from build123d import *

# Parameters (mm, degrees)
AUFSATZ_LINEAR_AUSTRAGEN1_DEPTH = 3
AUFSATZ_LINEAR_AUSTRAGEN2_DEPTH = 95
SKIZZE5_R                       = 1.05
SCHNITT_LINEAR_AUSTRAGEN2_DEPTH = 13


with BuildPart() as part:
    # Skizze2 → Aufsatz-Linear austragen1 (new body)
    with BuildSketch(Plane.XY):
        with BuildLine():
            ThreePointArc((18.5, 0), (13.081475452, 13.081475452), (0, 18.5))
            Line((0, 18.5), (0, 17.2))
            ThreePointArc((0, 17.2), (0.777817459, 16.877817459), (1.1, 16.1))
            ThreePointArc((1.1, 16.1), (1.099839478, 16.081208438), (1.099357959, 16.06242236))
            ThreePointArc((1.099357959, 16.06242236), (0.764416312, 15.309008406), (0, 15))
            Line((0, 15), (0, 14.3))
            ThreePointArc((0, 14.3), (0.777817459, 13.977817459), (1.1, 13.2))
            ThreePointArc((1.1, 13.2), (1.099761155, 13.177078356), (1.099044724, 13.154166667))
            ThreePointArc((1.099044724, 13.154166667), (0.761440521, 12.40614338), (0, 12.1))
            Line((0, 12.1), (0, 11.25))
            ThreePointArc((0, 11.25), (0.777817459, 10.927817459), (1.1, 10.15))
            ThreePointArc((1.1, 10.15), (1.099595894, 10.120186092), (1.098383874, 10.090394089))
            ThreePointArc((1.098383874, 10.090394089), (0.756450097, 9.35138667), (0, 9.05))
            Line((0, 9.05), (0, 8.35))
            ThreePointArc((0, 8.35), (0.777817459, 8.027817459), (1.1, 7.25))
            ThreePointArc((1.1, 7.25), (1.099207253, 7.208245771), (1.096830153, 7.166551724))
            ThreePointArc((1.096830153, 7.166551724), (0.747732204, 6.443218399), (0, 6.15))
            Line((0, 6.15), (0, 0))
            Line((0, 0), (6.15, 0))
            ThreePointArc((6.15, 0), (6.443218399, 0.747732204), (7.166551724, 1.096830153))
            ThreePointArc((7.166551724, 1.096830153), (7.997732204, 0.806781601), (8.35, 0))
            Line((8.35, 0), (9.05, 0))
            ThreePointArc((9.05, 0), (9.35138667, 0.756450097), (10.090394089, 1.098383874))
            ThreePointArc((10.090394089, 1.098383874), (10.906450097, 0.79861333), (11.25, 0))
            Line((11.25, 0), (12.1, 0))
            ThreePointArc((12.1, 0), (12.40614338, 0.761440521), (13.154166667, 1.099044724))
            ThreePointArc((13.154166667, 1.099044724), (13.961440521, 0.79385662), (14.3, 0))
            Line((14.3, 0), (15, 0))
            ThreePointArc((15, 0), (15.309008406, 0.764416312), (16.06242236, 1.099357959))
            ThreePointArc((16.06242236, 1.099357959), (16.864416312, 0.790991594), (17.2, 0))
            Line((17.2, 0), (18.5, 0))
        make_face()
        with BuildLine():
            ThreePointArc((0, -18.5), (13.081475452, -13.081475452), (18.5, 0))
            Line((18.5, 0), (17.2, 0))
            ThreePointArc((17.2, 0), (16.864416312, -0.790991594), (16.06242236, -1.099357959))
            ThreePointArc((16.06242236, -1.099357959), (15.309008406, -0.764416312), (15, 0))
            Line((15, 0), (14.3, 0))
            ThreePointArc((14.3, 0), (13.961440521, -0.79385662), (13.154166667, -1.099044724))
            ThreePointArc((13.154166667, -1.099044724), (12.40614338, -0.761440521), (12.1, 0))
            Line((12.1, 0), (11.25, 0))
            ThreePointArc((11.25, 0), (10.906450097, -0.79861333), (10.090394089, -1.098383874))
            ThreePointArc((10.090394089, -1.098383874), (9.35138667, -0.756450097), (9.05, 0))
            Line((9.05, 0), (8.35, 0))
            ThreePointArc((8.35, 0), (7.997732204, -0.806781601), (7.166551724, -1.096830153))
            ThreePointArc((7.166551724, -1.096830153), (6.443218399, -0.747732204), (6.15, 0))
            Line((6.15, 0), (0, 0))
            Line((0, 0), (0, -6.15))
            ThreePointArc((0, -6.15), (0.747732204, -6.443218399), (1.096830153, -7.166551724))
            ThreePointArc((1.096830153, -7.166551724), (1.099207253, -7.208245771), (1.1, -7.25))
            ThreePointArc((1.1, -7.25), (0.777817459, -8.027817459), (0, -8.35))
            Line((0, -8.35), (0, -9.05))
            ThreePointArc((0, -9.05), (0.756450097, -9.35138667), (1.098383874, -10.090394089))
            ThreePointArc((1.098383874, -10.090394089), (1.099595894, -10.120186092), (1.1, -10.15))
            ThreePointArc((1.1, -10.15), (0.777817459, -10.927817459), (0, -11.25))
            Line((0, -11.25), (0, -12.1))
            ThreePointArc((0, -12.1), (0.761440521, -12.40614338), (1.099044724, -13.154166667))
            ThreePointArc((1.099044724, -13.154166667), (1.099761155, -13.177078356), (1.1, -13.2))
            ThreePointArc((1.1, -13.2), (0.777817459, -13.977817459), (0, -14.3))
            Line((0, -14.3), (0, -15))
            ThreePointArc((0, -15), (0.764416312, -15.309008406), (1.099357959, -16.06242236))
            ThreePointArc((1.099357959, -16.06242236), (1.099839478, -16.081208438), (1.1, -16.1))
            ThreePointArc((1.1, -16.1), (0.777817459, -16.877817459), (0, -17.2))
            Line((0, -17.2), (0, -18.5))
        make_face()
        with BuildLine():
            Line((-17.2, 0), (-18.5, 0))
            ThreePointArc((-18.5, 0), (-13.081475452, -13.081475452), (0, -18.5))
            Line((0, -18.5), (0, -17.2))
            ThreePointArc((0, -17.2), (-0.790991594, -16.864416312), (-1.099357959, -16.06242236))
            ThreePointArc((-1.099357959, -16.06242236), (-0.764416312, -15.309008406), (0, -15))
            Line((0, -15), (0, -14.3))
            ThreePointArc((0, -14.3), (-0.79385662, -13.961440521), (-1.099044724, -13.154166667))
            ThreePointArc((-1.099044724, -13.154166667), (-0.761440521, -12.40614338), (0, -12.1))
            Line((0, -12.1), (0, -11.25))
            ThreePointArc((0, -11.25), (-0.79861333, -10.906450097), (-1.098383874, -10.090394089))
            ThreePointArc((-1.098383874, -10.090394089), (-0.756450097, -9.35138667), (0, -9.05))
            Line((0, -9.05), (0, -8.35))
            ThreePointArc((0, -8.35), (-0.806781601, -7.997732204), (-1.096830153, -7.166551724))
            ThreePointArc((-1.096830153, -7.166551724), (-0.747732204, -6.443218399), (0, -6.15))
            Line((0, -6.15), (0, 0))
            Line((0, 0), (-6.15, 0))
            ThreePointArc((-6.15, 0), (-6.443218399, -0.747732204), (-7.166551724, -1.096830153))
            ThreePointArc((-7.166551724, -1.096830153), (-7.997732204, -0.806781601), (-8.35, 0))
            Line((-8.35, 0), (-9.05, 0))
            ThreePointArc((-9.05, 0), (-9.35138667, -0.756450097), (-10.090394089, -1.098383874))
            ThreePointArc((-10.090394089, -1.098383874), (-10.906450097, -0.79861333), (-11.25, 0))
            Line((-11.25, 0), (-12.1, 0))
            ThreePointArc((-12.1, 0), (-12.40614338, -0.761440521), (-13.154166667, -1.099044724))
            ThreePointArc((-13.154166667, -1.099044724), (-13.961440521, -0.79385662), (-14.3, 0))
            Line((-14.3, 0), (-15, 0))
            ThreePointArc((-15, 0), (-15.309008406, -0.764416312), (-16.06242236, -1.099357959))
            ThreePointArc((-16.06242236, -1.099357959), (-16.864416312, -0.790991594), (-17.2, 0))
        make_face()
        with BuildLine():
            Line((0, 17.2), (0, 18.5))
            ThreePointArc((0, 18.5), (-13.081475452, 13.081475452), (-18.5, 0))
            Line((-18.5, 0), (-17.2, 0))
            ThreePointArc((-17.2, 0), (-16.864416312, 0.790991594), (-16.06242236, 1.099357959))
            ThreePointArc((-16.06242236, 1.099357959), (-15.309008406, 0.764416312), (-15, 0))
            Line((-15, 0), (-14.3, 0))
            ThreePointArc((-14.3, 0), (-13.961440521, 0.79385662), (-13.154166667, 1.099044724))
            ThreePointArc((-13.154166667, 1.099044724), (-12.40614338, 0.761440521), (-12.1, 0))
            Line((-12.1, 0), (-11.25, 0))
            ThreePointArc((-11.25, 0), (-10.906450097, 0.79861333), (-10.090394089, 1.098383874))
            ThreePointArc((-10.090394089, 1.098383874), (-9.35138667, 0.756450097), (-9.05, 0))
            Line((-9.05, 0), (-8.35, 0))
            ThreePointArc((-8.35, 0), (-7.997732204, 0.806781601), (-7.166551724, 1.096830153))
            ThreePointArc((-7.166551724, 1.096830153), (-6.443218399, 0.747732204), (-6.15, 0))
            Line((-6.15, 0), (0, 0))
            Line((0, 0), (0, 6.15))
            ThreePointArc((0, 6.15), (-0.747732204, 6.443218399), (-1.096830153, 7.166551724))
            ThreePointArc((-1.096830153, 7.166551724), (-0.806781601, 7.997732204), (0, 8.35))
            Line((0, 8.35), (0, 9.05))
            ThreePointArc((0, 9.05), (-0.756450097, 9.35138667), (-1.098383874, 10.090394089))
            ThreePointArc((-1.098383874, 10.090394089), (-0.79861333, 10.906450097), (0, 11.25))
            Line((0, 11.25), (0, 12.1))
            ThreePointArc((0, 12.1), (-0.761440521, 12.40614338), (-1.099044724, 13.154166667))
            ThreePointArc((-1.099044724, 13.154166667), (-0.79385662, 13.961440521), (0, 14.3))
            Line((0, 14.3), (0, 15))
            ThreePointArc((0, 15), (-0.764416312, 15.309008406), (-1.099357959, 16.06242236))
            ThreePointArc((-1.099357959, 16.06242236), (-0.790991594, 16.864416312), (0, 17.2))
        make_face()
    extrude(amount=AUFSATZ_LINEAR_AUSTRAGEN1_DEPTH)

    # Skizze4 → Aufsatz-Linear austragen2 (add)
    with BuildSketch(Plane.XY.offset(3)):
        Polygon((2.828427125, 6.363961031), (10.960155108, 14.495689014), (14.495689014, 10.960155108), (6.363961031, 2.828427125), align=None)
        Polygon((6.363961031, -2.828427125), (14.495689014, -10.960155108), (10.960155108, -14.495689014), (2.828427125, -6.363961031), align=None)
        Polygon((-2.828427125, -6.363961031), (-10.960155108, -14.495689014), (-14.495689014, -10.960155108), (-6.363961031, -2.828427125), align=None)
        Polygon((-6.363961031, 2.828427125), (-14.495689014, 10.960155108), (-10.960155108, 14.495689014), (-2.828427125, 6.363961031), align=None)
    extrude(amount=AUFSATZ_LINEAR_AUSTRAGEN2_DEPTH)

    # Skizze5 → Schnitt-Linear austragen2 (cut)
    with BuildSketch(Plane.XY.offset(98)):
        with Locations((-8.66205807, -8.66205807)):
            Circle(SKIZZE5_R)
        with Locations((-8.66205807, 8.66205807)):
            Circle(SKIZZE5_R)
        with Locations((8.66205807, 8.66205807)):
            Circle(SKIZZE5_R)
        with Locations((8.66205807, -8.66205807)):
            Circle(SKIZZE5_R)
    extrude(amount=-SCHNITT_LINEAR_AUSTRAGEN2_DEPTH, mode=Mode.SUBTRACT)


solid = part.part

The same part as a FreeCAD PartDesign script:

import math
import FreeCAD as App
import Part
import Sketcher
from FreeCAD import Vector

doc = App.newDocument("Part")
body = doc.addObject("PartDesign::Body", "Body")

# Sketch on XY plane
sketch1 = body.newObject("Sketcher::SketchObject", "Sketch")
sketch1.AttachmentSupport = (doc.getObject("XY_Plane"), [""])
sketch1.MapMode = "FlatFace"
sketch1.addGeometry([
    Part.ArcOfCircle(Part.Circle(Vector(0, 0, 0), Vector(0, 0, 1), 18.5), math.radians(0), math.radians(90)),  # 0
    Part.ArcOfCircle(Part.Circle(Vector(0, 0, 0), Vector(0, 0, 1), 18.5), math.radians(90), math.radians(180)),  # 1
    Part.ArcOfCircle(Part.Circle(Vector(0, 0, 0), Vector(0, 0, 1), 18.5), math.radians(180), math.radians(270)),  # 2
    Part.ArcOfCircle(Part.Circle(Vector(0, 0, 0), Vector(0, 0, 1), 18.5), math.radians(-90), math.radians(0)),  # 3
    Part.ArcOfCircle(Part.Circle(Vector(0, 16.1, 0), Vector(0, 0, 1), 1.1), math.radians(0), math.radians(90)),  # 4
    Part.ArcOfCircle(Part.Circle(Vector(0, 16.1, 0), Vector(0, 0, 1), 1.1), math.radians(-1.96), math.radians(0)),  # 5
    Part.ArcOfCircle(Part.Circle(Vector(0, 16.1, 0), Vector(0, 0, 1), 1.1), math.radians(-90), math.radians(-2)),  # 6
    Part.ArcOfCircle(Part.Circle(Vector(0, 16.1, 0), Vector(0, 0, 1), 1.1), math.radians(-178), math.radians(-90)),  # 7
    Part.ArcOfCircle(Part.Circle(Vector(0, 16.1, 0), Vector(0, 0, 1), 1.1), math.radians(90), math.radians(182)),  # 8
    Part.ArcOfCircle(Part.Circle(Vector(0, 13.2, 0), Vector(0, 0, 1), 1.1), math.radians(0), math.radians(90)),  # 9
    Part.ArcOfCircle(Part.Circle(Vector(0, 13.2, 0), Vector(0, 0, 1), 1.1), math.radians(-2.39), math.radians(0)),  # 10
    Part.ArcOfCircle(Part.Circle(Vector(0, 13.2, 0), Vector(0, 0, 1), 1.1), math.radians(-90), math.radians(-2)),  # 11
    Part.ArcOfCircle(Part.Circle(Vector(0, 13.2, 0), Vector(0, 0, 1), 1.1), math.radians(-178), math.radians(-90)),  # 12
    Part.ArcOfCircle(Part.Circle(Vector(0, 13.2, 0), Vector(0, 0, 1), 1.1), math.radians(90), math.radians(182)),  # 13
    Part.ArcOfCircle(Part.Circle(Vector(0, 10.15, 0), Vector(0, 0, 1), 1.1), math.radians(0), math.radians(90)),  # 14
    Part.ArcOfCircle(Part.Circle(Vector(0, 10.15, 0), Vector(0, 0, 1), 1.1), math.radians(-3.11), math.radians(0)),  # 15
    Part.ArcOfCircle(Part.Circle(Vector(0, 10.15, 0), Vector(0, 0, 1), 1.1), math.radians(-90), math.radians(-3)),  # 16
    Part.ArcOfCircle(Part.Circle(Vector(0, 10.15, 0), Vector(0, 0, 1), 1.1), math.radians(-177), math.radians(-90)),  # 17
    Part.ArcOfCircle(Part.Circle(Vector(0, 10.15, 0), Vector(0, 0, 1), 1.1), math.radians(90), math.radians(183)),  # 18
    Part.ArcOfCircle(Part.Circle(Vector(0, 7.25, 0), Vector(0, 0, 1), 1.1), math.radians(0), math.radians(90)),  # 19
    Part.ArcOfCircle(Part.Circle(Vector(0, 7.25, 0), Vector(0, 0, 1), 1.1), math.radians(-4.35), math.radians(0)),  # 20
    Part.ArcOfCircle(Part.Circle(Vector(0, 7.25, 0), Vector(0, 0, 1), 1.1), math.radians(-90), math.radians(-4)),  # 21
    Part.ArcOfCircle(Part.Circle(Vector(0, 7.25, 0), Vector(0, 0, 1), 1.1), math.radians(-176), math.radians(-90)),  # 22
    Part.ArcOfCircle(Part.Circle(Vector(0, 7.25, 0), Vector(0, 0, 1), 1.1), math.radians(90), math.radians(184)),  # 23
    Part.ArcOfCircle(Part.Circle(Vector(-7.25, 0, 0), Vector(0, 0, 1), 1.1), math.radians(-86), math.radians(0)),  # 24
    Part.ArcOfCircle(Part.Circle(Vector(-7.25, 0, 0), Vector(0, 0, 1), 1.1), math.radians(180), math.radians(274)),  # 25
    Part.ArcOfCircle(Part.Circle(Vector(-7.25, 0, 0), Vector(0, 0, 1), 1.1), math.radians(86), math.radians(180)),  # 26
    Part.ArcOfCircle(Part.Circle(Vector(-7.25, 0, 0), Vector(0, 0, 1), 1.1), math.radians(0), math.radians(86)),  # 27
    Part.ArcOfCircle(Part.Circle(Vector(-10.15, 0, 0), Vector(0, 0, 1), 1.1), math.radians(-87), math.radians(0)),  # 28
    Part.ArcOfCircle(Part.Circle(Vector(-10.15, 0, 0), Vector(0, 0, 1), 1.1), math.radians(180), math.radians(273)),  # 29
    Part.ArcOfCircle(Part.Circle(Vector(-10.15, 0, 0), Vector(0, 0, 1), 1.1), math.radians(87), math.radians(180)),  # 30
    Part.ArcOfCircle(Part.Circle(Vector(-10.15, 0, 0), Vector(0, 0, 1), 1.1), math.radians(0), math.radians(87)),  # 31
    Part.ArcOfCircle(Part.Circle(Vector(-13.2, 0, 0), Vector(0, 0, 1), 1.1), math.radians(-88), math.radians(0)),  # 32
    Part.ArcOfCircle(Part.Circle(Vector(-13.2, 0, 0), Vector(0, 0, 1), 1.1), math.radians(180), math.radians(272)),  # 33
    Part.ArcOfCircle(Part.Circle(Vector(-13.2, 0, 0), Vector(0, 0, 1), 1.1), math.radians(88), math.radians(180)),  # 34
    Part.ArcOfCircle(Part.Circle(Vector(-13.2, 0, 0), Vector(0, 0, 1), 1.1), math.radians(0), math.radians(88)),  # 35
    Part.ArcOfCircle(Part.Circle(Vector(-16.1, 0, 0), Vector(0, 0, 1), 1.1), math.radians(-88), math.radians(0)),  # 36
    Part.ArcOfCircle(Part.Circle(Vector(-16.1, 0, 0), Vector(0, 0, 1), 1.1), math.radians(-180), math.radians(-88)),  # 37
    Part.ArcOfCircle(Part.Circle(Vector(-16.1, 0, 0), Vector(0, 0, 1), 1.1), math.radians(88), math.radians(180)),  # 38
    Part.ArcOfCircle(Part.Circle(Vector(-16.1, 0, 0), Vector(0, 0, 1), 1.1), math.radians(0), math.radians(88)),  # 39
    Part.ArcOfCircle(Part.Circle(Vector(0, -7.25, 0), Vector(0, 0, 1), 1.1), math.radians(4), math.radians(90)),  # 40
    Part.ArcOfCircle(Part.Circle(Vector(0, -7.25, 0), Vector(0, 0, 1), 1.1), math.radians(0), math.radians(4.35)),  # 41
    Part.ArcOfCircle(Part.Circle(Vector(0, -7.25, 0), Vector(0, 0, 1), 1.1), math.radians(-90), math.radians(0)),  # 42
    Part.ArcOfCircle(Part.Circle(Vector(0, -7.25, 0), Vector(0, 0, 1), 1.1), math.radians(176), math.radians(270)),  # 43
    Part.ArcOfCircle(Part.Circle(Vector(0, -7.25, 0), Vector(0, 0, 1), 1.1), math.radians(90), math.radians(176)),  # 44
    Part.ArcOfCircle(Part.Circle(Vector(0, -10.15, 0), Vector(0, 0, 1), 1.1), math.radians(3), math.radians(90)),  # 45
    Part.ArcOfCircle(Part.Circle(Vector(0, -10.15, 0), Vector(0, 0, 1), 1.1), math.radians(0), math.radians(3.11)),  # 46
    Part.ArcOfCircle(Part.Circle(Vector(0, -10.15, 0), Vector(0, 0, 1), 1.1), math.radians(-90), math.radians(0)),  # 47
    Part.ArcOfCircle(Part.Circle(Vector(0, -10.15, 0), Vector(0, 0, 1), 1.1), math.radians(177), math.radians(270)),  # 48
    Part.ArcOfCircle(Part.Circle(Vector(0, -10.15, 0), Vector(0, 0, 1), 1.1), math.radians(90), math.radians(177)),  # 49
    Part.ArcOfCircle(Part.Circle(Vector(0, -13.2, 0), Vector(0, 0, 1), 1.1), math.radians(2), math.radians(90)),  # 50
    Part.ArcOfCircle(Part.Circle(Vector(0, -13.2, 0), Vector(0, 0, 1), 1.1), math.radians(0), math.radians(2.39)),  # 51
    Part.ArcOfCircle(Part.Circle(Vector(0, -13.2, 0), Vector(0, 0, 1), 1.1), math.radians(-90), math.radians(0)),  # 52
    Part.ArcOfCircle(Part.Circle(Vector(0, -13.2, 0), Vector(0, 0, 1), 1.1), math.radians(178), math.radians(270)),  # 53
    Part.ArcOfCircle(Part.Circle(Vector(0, -13.2, 0), Vector(0, 0, 1), 1.1), math.radians(90), math.radians(178)),  # 54
    Part.ArcOfCircle(Part.Circle(Vector(0, -16.1, 0), Vector(0, 0, 1), 1.1), math.radians(2), math.radians(90)),  # 55
    Part.ArcOfCircle(Part.Circle(Vector(0, -16.1, 0), Vector(0, 0, 1), 1.1), math.radians(0), math.radians(1.96)),  # 56
    Part.ArcOfCircle(Part.Circle(Vector(0, -16.1, 0), Vector(0, 0, 1), 1.1), math.radians(-90), math.radians(0)),  # 57
    Part.ArcOfCircle(Part.Circle(Vector(0, -16.1, 0), Vector(0, 0, 1), 1.1), math.radians(178), math.radians(270)),  # 58
    Part.ArcOfCircle(Part.Circle(Vector(0, -16.1, 0), Vector(0, 0, 1), 1.1), math.radians(90), math.radians(178)),  # 59
    Part.ArcOfCircle(Part.Circle(Vector(7.25, 0, 0), Vector(0, 0, 1), 1.1), math.radians(94), math.radians(180)),  # 60
    Part.ArcOfCircle(Part.Circle(Vector(7.25, 0, 0), Vector(0, 0, 1), 1.1), math.radians(0), math.radians(94)),  # 61
    Part.ArcOfCircle(Part.Circle(Vector(7.25, 0, 0), Vector(0, 0, 1), 1.1), math.radians(-94), math.radians(0)),  # 62
    Part.ArcOfCircle(Part.Circle(Vector(7.25, 0, 0), Vector(0, 0, 1), 1.1), math.radians(180), math.radians(266)),  # 63
    Part.ArcOfCircle(Part.Circle(Vector(10.15, 0, 0), Vector(0, 0, 1), 1.1), math.radians(93), math.radians(180)),  # 64
    Part.ArcOfCircle(Part.Circle(Vector(10.15, 0, 0), Vector(0, 0, 1), 1.1), math.radians(0), math.radians(93)),  # 65
    Part.ArcOfCircle(Part.Circle(Vector(10.15, 0, 0), Vector(0, 0, 1), 1.1), math.radians(-93), math.radians(0)),  # 66
    Part.ArcOfCircle(Part.Circle(Vector(10.15, 0, 0), Vector(0, 0, 1), 1.1), math.radians(180), math.radians(267)),  # 67
    Part.ArcOfCircle(Part.Circle(Vector(13.2, 0, 0), Vector(0, 0, 1), 1.1), math.radians(92), math.radians(180)),  # 68
    Part.ArcOfCircle(Part.Circle(Vector(13.2, 0, 0), Vector(0, 0, 1), 1.1), math.radians(0), math.radians(92)),  # 69
    Part.ArcOfCircle(Part.Circle(Vector(13.2, 0, 0), Vector(0, 0, 1), 1.1), math.radians(-92), math.radians(0)),  # 70
    Part.ArcOfCircle(Part.Circle(Vector(13.2, 0, 0), Vector(0, 0, 1), 1.1), math.radians(180), math.radians(268)),  # 71
    Part.ArcOfCircle(Part.Circle(Vector(16.1, 0, 0), Vector(0, 0, 1), 1.1), math.radians(92), math.radians(180)),  # 72
    Part.ArcOfCircle(Part.Circle(Vector(16.1, 0, 0), Vector(0, 0, 1), 1.1), math.radians(0), math.radians(92)),  # 73
    Part.ArcOfCircle(Part.Circle(Vector(16.1, 0, 0), Vector(0, 0, 1), 1.1), math.radians(-92), math.radians(0)),  # 74
    Part.ArcOfCircle(Part.Circle(Vector(16.1, 0, 0), Vector(0, 0, 1), 1.1), math.radians(-180), math.radians(-92)),  # 75
], False)
sketch1.addConstraint([
    Sketcher.Constraint("Tangent", 0, 2, 1, 1),
    Sketcher.Constraint("Tangent", 1, 2, 2, 1),
    Sketcher.Constraint("Tangent", 2, 2, 3, 1),
    Sketcher.Constraint("Tangent", 3, 2, 0, 1),
    Sketcher.Constraint("Tangent", 4, 1, 5, 2),
    Sketcher.Constraint("Tangent", 5, 1, 6, 2),
    Sketcher.Constraint("Tangent", 6, 1, 7, 2),
    Sketcher.Constraint("Tangent", 7, 1, 8, 2),
    Sketcher.Constraint("Tangent", 8, 1, 4, 2),
    Sketcher.Constraint("Tangent", 9, 1, 10, 2),
    Sketcher.Constraint("Tangent", 10, 1, 11, 2),
    Sketcher.Constraint("Tangent", 11, 1, 12, 2),
    Sketcher.Constraint("Tangent", 12, 1, 13, 2),
    Sketcher.Constraint("Tangent", 13, 1, 9, 2),
    Sketcher.Constraint("Tangent", 14, 1, 15, 2),
    Sketcher.Constraint("Tangent", 15, 1, 16, 2),
    Sketcher.Constraint("Tangent", 16, 1, 17, 2),
    Sketcher.Constraint("Tangent", 17, 1, 18, 2),
    Sketcher.Constraint("Tangent", 18, 1, 14, 2),
    Sketcher.Constraint("Tangent", 19, 1, 20, 2),
    Sketcher.Constraint("Tangent", 20, 1, 21, 2),
    Sketcher.Constraint("Tangent", 21, 1, 22, 2),
    Sketcher.Constraint("Tangent", 22, 1, 23, 2),
    Sketcher.Constraint("Tangent", 23, 1, 19, 2),
    Sketcher.Constraint("Tangent", 24, 1, 25, 2),
    Sketcher.Constraint("Tangent", 25, 1, 26, 2),
    Sketcher.Constraint("Tangent", 26, 1, 27, 2),
    Sketcher.Constraint("Tangent", 27, 1, 24, 2),
    Sketcher.Constraint("Tangent", 28, 1, 29, 2),
    Sketcher.Constraint("Tangent", 29, 1, 30, 2),
    Sketcher.Constraint("Tangent", 30, 1, 31, 2),
    Sketcher.Constraint("Tangent", 31, 1, 28, 2),
    Sketcher.Constraint("Tangent", 32, 1, 33, 2),
    Sketcher.Constraint("Tangent", 33, 1, 34, 2),
    Sketcher.Constraint("Tangent", 34, 1, 35, 2),
    Sketcher.Constraint("Tangent", 35, 1, 32, 2),
    Sketcher.Constraint("Tangent", 36, 1, 37, 2),
    Sketcher.Constraint("Tangent", 37, 1, 38, 2),
    Sketcher.Constraint("Tangent", 38, 1, 39, 2),
    Sketcher.Constraint("Tangent", 39, 1, 36, 2),
    Sketcher.Constraint("Tangent", 40, 1, 41, 2),
    Sketcher.Constraint("Tangent", 41, 1, 42, 2),
    Sketcher.Constraint("Tangent", 42, 1, 43, 2),
    Sketcher.Constraint("Tangent", 43, 1, 44, 2),
    Sketcher.Constraint("Tangent", 44, 1, 40, 2),
    Sketcher.Constraint("Tangent", 45, 1, 46, 2),
    Sketcher.Constraint("Tangent", 46, 1, 47, 2),
    Sketcher.Constraint("Tangent", 47, 1, 48, 2),
    Sketcher.Constraint("Tangent", 48, 1, 49, 2),
    Sketcher.Constraint("Tangent", 49, 1, 45, 2),
    Sketcher.Constraint("Tangent", 50, 1, 51, 2),
    Sketcher.Constraint("Tangent", 51, 1, 52, 2),
    Sketcher.Constraint("Tangent", 52, 1, 53, 2),
    Sketcher.Constraint("Tangent", 53, 1, 54, 2),
    Sketcher.Constraint("Tangent", 54, 1, 50, 2),
    Sketcher.Constraint("Tangent", 55, 1, 56, 2),
    Sketcher.Constraint("Tangent", 56, 1, 57, 2),
    Sketcher.Constraint("Tangent", 57, 1, 58, 2),
    Sketcher.Constraint("Tangent", 58, 1, 59, 2),
    Sketcher.Constraint("Tangent", 59, 1, 55, 2),
    Sketcher.Constraint("Tangent", 60, 1, 61, 2),
    Sketcher.Constraint("Tangent", 61, 1, 62, 2),
    Sketcher.Constraint("Tangent", 62, 1, 63, 2),
    Sketcher.Constraint("Tangent", 63, 1, 60, 2),
    Sketcher.Constraint("Tangent", 64, 1, 65, 2),
    Sketcher.Constraint("Tangent", 65, 1, 66, 2),
    Sketcher.Constraint("Tangent", 66, 1, 67, 2),
    Sketcher.Constraint("Tangent", 67, 1, 64, 2),
    Sketcher.Constraint("Tangent", 68, 1, 69, 2),
    Sketcher.Constraint("Tangent", 69, 1, 70, 2),
    Sketcher.Constraint("Tangent", 70, 1, 71, 2),
    Sketcher.Constraint("Tangent", 71, 1, 68, 2),
    Sketcher.Constraint("Tangent", 72, 1, 73, 2),
    Sketcher.Constraint("Tangent", 73, 1, 74, 2),
    Sketcher.Constraint("Tangent", 74, 1, 75, 2),
    Sketcher.Constraint("Tangent", 75, 1, 72, 2),
    Sketcher.Constraint("Coincident", 0, 3, -1, 1),
    Sketcher.Constraint("Coincident", 6, 3, 4, 3),
    Sketcher.Constraint("Coincident", 11, 3, 9, 3),
    Sketcher.Constraint("Coincident", 16, 3, 14, 3),
    Sketcher.Constraint("Coincident", 21, 3, 19, 3),
    Sketcher.Constraint("Coincident", 42, 3, 40, 3),
    Sketcher.Constraint("Coincident", 47, 3, 45, 3),
    Sketcher.Constraint("Coincident", 52, 3, 50, 3),
    Sketcher.Constraint("Coincident", 57, 3, 55, 3),
    Sketcher.Constraint("Equal", 0, 1),
    Sketcher.Constraint("Equal", 8, 9),
    Sketcher.Constraint("Equal", 13, 14),
    Sketcher.Constraint("Equal", 18, 19),
    Sketcher.Constraint("Equal", 23, 24),
    Sketcher.Constraint("Equal", 24, 25),
    Sketcher.Constraint("Equal", 27, 28),
    Sketcher.Constraint("Equal", 28, 29),
    Sketcher.Constraint("Equal", 31, 32),
    Sketcher.Constraint("Equal", 32, 33),
    Sketcher.Constraint("Equal", 35, 36),
    Sketcher.Constraint("Equal", 36, 37),
    Sketcher.Constraint("Equal", 39, 40),
    Sketcher.Constraint("Equal", 44, 45),
    Sketcher.Constraint("Equal", 49, 50),
    Sketcher.Constraint("Equal", 54, 55),
    Sketcher.Constraint("Equal", 59, 60),
    Sketcher.Constraint("Equal", 60, 61),
    Sketcher.Constraint("Equal", 63, 64),
    Sketcher.Constraint("Equal", 64, 65),
    Sketcher.Constraint("Equal", 67, 68),
    Sketcher.Constraint("Equal", 68, 69),
    Sketcher.Constraint("Equal", 71, 72),
    Sketcher.Constraint("Equal", 72, 73),
    Sketcher.Constraint("Symmetric", 19, 3, 40, 3, -1, 1),
    Sketcher.Constraint("Symmetric", 14, 3, 45, 3, -1, 1),
    Sketcher.Constraint("Symmetric", 9, 3, 50, 3, -1, 1),
    Sketcher.Constraint("Symmetric", 4, 3, 55, 3, -1, 1),
    Sketcher.Constraint("Symmetric", 24, 3, 60, 3, -1, 1),
    Sketcher.Constraint("Symmetric", 28, 3, 64, 3, -1, 1),
    Sketcher.Constraint("Symmetric", 32, 3, 68, 3, -1, 1),
    Sketcher.Constraint("Symmetric", 36, 3, 72, 3, -1, 1),
    Sketcher.Constraint("Symmetric", 5, 1, 7, 1, -2),
    Sketcher.Constraint("Symmetric", 10, 1, 12, 1, -2),
    Sketcher.Constraint("Symmetric", 15, 1, 17, 1, -2),
    Sketcher.Constraint("Symmetric", 20, 1, 22, 1, -2),
    Sketcher.Constraint("Symmetric", 26, 1, 60, 1, -2),
    Sketcher.Constraint("Symmetric", 30, 1, 64, 1, -2),
    Sketcher.Constraint("Symmetric", 34, 1, 68, 1, -2),
    Sketcher.Constraint("Symmetric", 38, 1, 72, 1, -2),
    Sketcher.Constraint("PointOnObject", 0, 2, -2),
    Sketcher.Constraint("PointOnObject", 1, 2, -1),
    Sketcher.Constraint("PointOnObject", 2, 2, -2),
    Sketcher.Constraint("PointOnObject", 3, 2, -1),
    Sketcher.Constraint("PointOnObject", 6, 1, -2),
    Sketcher.Constraint("PointOnObject", 8, 1, -2),
    Sketcher.Constraint("PointOnObject", 11, 1, -2),
    Sketcher.Constraint("PointOnObject", 13, 1, -2),
    Sketcher.Constraint("PointOnObject", 16, 1, -2),
    Sketcher.Constraint("PointOnObject", 18, 1, -2),
    Sketcher.Constraint("PointOnObject", 21, 1, -2),
    Sketcher.Constraint("PointOnObject", 23, 1, -2),
    Sketcher.Constraint("PointOnObject", 25, 1, -1),
    Sketcher.Constraint("PointOnObject", 27, 1, -1),
    Sketcher.Constraint("PointOnObject", 29, 1, -1),
    Sketcher.Constraint("PointOnObject", 31, 1, -1),
    Sketcher.Constraint("PointOnObject", 33, 1, -1),
    Sketcher.Constraint("PointOnObject", 35, 1, -1),
    Sketcher.Constraint("PointOnObject", 37, 1, -1),
    Sketcher.Constraint("PointOnObject", 39, 1, -1),
    Sketcher.Constraint("PointOnObject", 42, 1, -2),
    Sketcher.Constraint("PointOnObject", 44, 1, -2),
    Sketcher.Constraint("PointOnObject", 47, 1, -2),
    Sketcher.Constraint("PointOnObject", 49, 1, -2),
    Sketcher.Constraint("PointOnObject", 52, 1, -2),
    Sketcher.Constraint("PointOnObject", 54, 1, -2),
    Sketcher.Constraint("PointOnObject", 57, 1, -2),
    Sketcher.Constraint("PointOnObject", 59, 1, -2),
    Sketcher.Constraint("PointOnObject", 61, 1, -1),
    Sketcher.Constraint("PointOnObject", 63, 1, -1),
    Sketcher.Constraint("PointOnObject", 65, 1, -1),
    Sketcher.Constraint("PointOnObject", 67, 1, -1),
    Sketcher.Constraint("PointOnObject", 69, 1, -1),
    Sketcher.Constraint("PointOnObject", 71, 1, -1),
    Sketcher.Constraint("PointOnObject", 73, 1, -1),
    Sketcher.Constraint("PointOnObject", 75, 1, -1),
    Sketcher.Constraint("Horizontal", 8, 3, 4, 1),
    Sketcher.Constraint("Horizontal", 13, 3, 9, 1),
    Sketcher.Constraint("Horizontal", 18, 3, 14, 1),
    Sketcher.Constraint("Horizontal", 23, 3, 19, 1),
    Sketcher.Constraint("Horizontal", 44, 3, 41, 1),
    Sketcher.Constraint("Horizontal", 40, 1, 43, 1),
    Sketcher.Constraint("Horizontal", 49, 3, 46, 1),
    Sketcher.Constraint("Horizontal", 45, 1, 48, 1),
    Sketcher.Constraint("Horizontal", 54, 3, 51, 1),
    Sketcher.Constraint("Horizontal", 50, 1, 53, 1),
    Sketcher.Constraint("Horizontal", 59, 3, 56, 1),
    Sketcher.Constraint("Horizontal", 55, 1, 58, 1),
    Sketcher.Constraint("Horizontal", 24, 1, 62, 1),
    Sketcher.Constraint("Horizontal", 28, 1, 66, 1),
    Sketcher.Constraint("Horizontal", 32, 1, 70, 1),
    Sketcher.Constraint("Horizontal", 36, 1, 74, 1),
    Sketcher.Constraint("Vertical", 24, 1, 26, 1),
    Sketcher.Constraint("Vertical", 28, 1, 30, 1),
    Sketcher.Constraint("Vertical", 32, 1, 34, 1),
    Sketcher.Constraint("Vertical", 36, 1, 38, 1),
    Sketcher.Constraint("Vertical", 20, 1, 40, 1),
    Sketcher.Constraint("Vertical", 15, 1, 45, 1),
    Sketcher.Constraint("Vertical", 10, 1, 50, 1),
    Sketcher.Constraint("Vertical", 5, 1, 55, 1),
    Sketcher.Constraint("Radius", 0, 18.5),
    Sketcher.Constraint("Radius", 4, 1.1),
    Sketcher.Constraint("DistanceY", -1, 1, 6, 1, 15.0),
    Sketcher.Constraint("DistanceX", 39, 1, -1, 1, 15.0),
    Sketcher.Constraint("DistanceY", -1, 1, 9, 3, 13.2),
    Sketcher.Constraint("DistanceX", 32, 3, -1, 1, 13.2),
    Sketcher.Constraint("DistanceY", -1, 1, 14, 3, 10.15),
    Sketcher.Constraint("DistanceY", -1, 1, 19, 3, 7.25),
    Sketcher.Constraint("DistanceX", 24, 3, -1, 1, 7.25),
    Sketcher.Constraint("DistanceX", 28, 3, -1, 1, 10.15),
    Sketcher.Constraint("DistanceX", -1, 1, 20, 1, 1.09683),
    Sketcher.Constraint("DistanceX", 24, 1, -1, 1, 7.166552),
    Sketcher.Constraint("DistanceX", -1, 1, 5, 1, 1.099358),
    Sketcher.Constraint("DistanceX", -1, 1, 10, 1, 1.099045),
    Sketcher.Constraint("DistanceX", -1, 1, 15, 1, 1.098384),
    Sketcher.Constraint("DistanceX", 28, 1, -1, 1, 10.090394),
    Sketcher.Constraint("DistanceX", 32, 1, -1, 1, 13.154167),
    Sketcher.Constraint("DistanceX", 36, 1, -1, 1, 16.062422),
])
pad1 = body.newObject("PartDesign::Pad", "Pad")
pad1.Profile = sketch1
pad1.Length = 3

# Sketch on XY plane
sketch2 = body.newObject("Sketcher::SketchObject", "Sketch001")
sketch2.AttachmentSupport = (doc.getObject("XY_Plane"), [""])
sketch2.MapMode = "FlatFace"
sketch2.AttachmentOffset = App.Placement(Vector(0, 0, 3), App.Rotation())
sketch2.addGeometry([
    Part.LineSegment(Vector(11, 14, 0), Vector(3, 6, 0)),  # 0
    Part.LineSegment(Vector(3, 6, 0), Vector(6, 3, 0)),  # 1
    Part.LineSegment(Vector(6, 3, 0), Vector(14, 11, 0)),  # 2
    Part.LineSegment(Vector(14, 11, 0), Vector(11, 14, 0)),  # 3
    Part.LineSegment(Vector(14, -11, 0), Vector(6, -3, 0)),  # 4
    Part.LineSegment(Vector(6, -3, 0), Vector(3, -6, 0)),  # 5
    Part.LineSegment(Vector(3, -6, 0), Vector(11, -14, 0)),  # 6
    Part.LineSegment(Vector(11, -14, 0), Vector(14, -11, 0)),  # 7
    Part.LineSegment(Vector(-11, -14, 0), Vector(-3, -6, 0)),  # 8
    Part.LineSegment(Vector(-3, -6, 0), Vector(-6, -3, 0)),  # 9
    Part.LineSegment(Vector(-6, -3, 0), Vector(-14, -11, 0)),  # 10
    Part.LineSegment(Vector(-14, -11, 0), Vector(-11, -14, 0)),  # 11
    Part.LineSegment(Vector(-14, 11, 0), Vector(-6, 3, 0)),  # 12
    Part.LineSegment(Vector(-6, 3, 0), Vector(-3, 6, 0)),  # 13
    Part.LineSegment(Vector(-3, 6, 0), Vector(-11, 14, 0)),  # 14
    Part.LineSegment(Vector(-11, 14, 0), Vector(-14, 11, 0)),  # 15
], False)
sketch2.addConstraint([
    Sketcher.Constraint("Coincident", 0, 2, 1, 1),
    Sketcher.Constraint("Coincident", 1, 2, 2, 1),
    Sketcher.Constraint("Coincident", 2, 2, 3, 1),
    Sketcher.Constraint("Coincident", 3, 2, 0, 1),
    Sketcher.Constraint("Coincident", 4, 2, 5, 1),
    Sketcher.Constraint("Coincident", 5, 2, 6, 1),
    Sketcher.Constraint("Coincident", 6, 2, 7, 1),
    Sketcher.Constraint("Coincident", 7, 2, 4, 1),
    Sketcher.Constraint("Coincident", 8, 2, 9, 1),
    Sketcher.Constraint("Coincident", 9, 2, 10, 1),
    Sketcher.Constraint("Coincident", 10, 2, 11, 1),
    Sketcher.Constraint("Coincident", 11, 2, 8, 1),
    Sketcher.Constraint("Coincident", 12, 2, 13, 1),
    Sketcher.Constraint("Coincident", 13, 2, 14, 1),
    Sketcher.Constraint("Coincident", 14, 2, 15, 1),
    Sketcher.Constraint("Coincident", 15, 2, 12, 1),
    Sketcher.Constraint("Symmetric", 0, 2, 8, 2, -1, 1),
    Sketcher.Constraint("Symmetric", 1, 2, 9, 2, -1, 1),
    Sketcher.Constraint("Symmetric", 2, 2, 10, 2, -1, 1),
    Sketcher.Constraint("Symmetric", 3, 2, 11, 2, -1, 1),
    Sketcher.Constraint("Symmetric", 4, 2, 12, 2, -1, 1),
    Sketcher.Constraint("Symmetric", 5, 2, 13, 2, -1, 1),
    Sketcher.Constraint("Symmetric", 6, 2, 14, 2, -1, 1),
    Sketcher.Constraint("Symmetric", 7, 2, 15, 2, -1, 1),
    Sketcher.Constraint("Symmetric", 5, 2, 8, 2, -2),
    Sketcher.Constraint("Symmetric", 4, 2, 9, 2, -2),
    Sketcher.Constraint("Symmetric", 7, 2, 10, 2, -2),
    Sketcher.Constraint("Symmetric", 6, 2, 11, 2, -2),
    Sketcher.Constraint("Perpendicular", 0, 1),
    Sketcher.Constraint("Perpendicular", 1, 2),
    Sketcher.Constraint("Perpendicular", 2, 3),
    Sketcher.Constraint("Parallel", 3, 4),
    Sketcher.Constraint("Distance", 1, 5.0),
    Sketcher.Constraint("Distance", 0, 11.5),
    Sketcher.Constraint("DistanceY", -1, 1, 0, 2, 6.363961),
    Sketcher.Constraint("DistanceX", -1, 1, 1, 2, 6.363961),
])
pad2 = body.newObject("PartDesign::Pad", "Pad001")
pad2.Profile = sketch2
pad2.Length = 95

# Sketch on XY plane
sketch3 = body.newObject("Sketcher::SketchObject", "Sketch002")
sketch3.AttachmentSupport = (doc.getObject("XY_Plane"), [""])
sketch3.MapMode = "FlatFace"
sketch3.AttachmentOffset = App.Placement(Vector(0, 0, 98), App.Rotation())
sketch3.addGeometry([
    Part.Circle(Vector(-8.7, -8.7, 0), Vector(0, 0, 1), 1.1),
    Part.Circle(Vector(-8.7, 8.7, 0), Vector(0, 0, 1), 1.1),
    Part.Circle(Vector(8.7, 8.7, 0), Vector(0, 0, 1), 1.1),
    Part.Circle(Vector(8.7, -8.7, 0), Vector(0, 0, 1), 1.1),
], False)
sketch3.addConstraint([
    Sketcher.Constraint("Equal", 0, 1),
    Sketcher.Constraint("Equal", 1, 2),
    Sketcher.Constraint("Equal", 2, 3),
    Sketcher.Constraint("Symmetric", 0, 3, 2, 3, -1, 1),
    Sketcher.Constraint("Symmetric", 1, 3, 3, 3, -1, 1),
    Sketcher.Constraint("Symmetric", 1, 3, 2, 3, -2),
    Sketcher.Constraint("Diameter", 0, 2.1),
    Sketcher.Constraint("DistanceX", 0, 3, -1, 1, 8.662058),
    Sketcher.Constraint("DistanceY", 0, 3, -1, 1, 8.662058),
])
pocket1 = body.newObject("PartDesign::Pocket", "Pocket")
pocket1.Profile = sketch3
pocket1.Length = 13

doc.recompute()
